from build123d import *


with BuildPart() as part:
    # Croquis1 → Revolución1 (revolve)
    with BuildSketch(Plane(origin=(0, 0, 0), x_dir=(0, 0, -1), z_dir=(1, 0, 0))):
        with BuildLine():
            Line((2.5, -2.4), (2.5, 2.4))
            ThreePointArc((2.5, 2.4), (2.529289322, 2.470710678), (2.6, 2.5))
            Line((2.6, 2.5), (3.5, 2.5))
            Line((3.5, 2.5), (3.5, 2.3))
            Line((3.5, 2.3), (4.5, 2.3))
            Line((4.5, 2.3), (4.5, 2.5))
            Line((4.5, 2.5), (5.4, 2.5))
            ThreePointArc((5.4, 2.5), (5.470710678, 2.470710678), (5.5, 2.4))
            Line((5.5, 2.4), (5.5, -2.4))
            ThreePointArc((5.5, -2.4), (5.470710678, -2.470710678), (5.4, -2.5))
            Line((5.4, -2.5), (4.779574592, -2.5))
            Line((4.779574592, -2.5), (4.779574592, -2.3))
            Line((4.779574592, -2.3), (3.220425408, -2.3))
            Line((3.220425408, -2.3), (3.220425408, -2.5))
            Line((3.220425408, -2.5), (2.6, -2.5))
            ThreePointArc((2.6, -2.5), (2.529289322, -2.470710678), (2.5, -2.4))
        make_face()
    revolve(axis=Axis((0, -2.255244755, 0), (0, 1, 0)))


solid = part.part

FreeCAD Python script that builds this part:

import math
import FreeCAD as App
import Part
import Sketcher
from FreeCAD import Vector
Q = App.Units.Quantity

doc = App.newDocument("Part")
body = doc.addObject("PartDesign::Body", "Body")

# Sketch on YZ plane
sketch1 = doc.addObject("Sketcher::SketchObject", "Sketch")
body.addObject(sketch1)
sketch1.AttachmentSupport = (doc.YZ_Plane, [""])
sketch1.MapMode = "FlatFace"
sketch1.addGeometry([
    Part.LineSegment(Vector(2.4, -2.5, 0), Vector(-2.4, -2.5, 0)),  # 0
    Part.ArcOfCircle(Part.Circle(Vector(-2.4, -2.6, 0), Vector(0, 0, 1), 0.1), math.radians(90), math.radians(180)),  # 1
    Part.LineSegment(Vector(-2.5, -2.6, 0), Vector(-2.5, -3.220425, 0)),  # 2
    Part.LineSegment(Vector(-2.5, -3.220425, 0), Vector(-2.3, -3.220425, 0)),  # 3
    Part.LineSegment(Vector(-2.3, -3.220425, 0), Vector(-2.3, -4.779575, 0)),  # 4
    Part.LineSegment(Vector(-2.3, -4.779575, 0), Vector(-2.5, -4.779575, 0)),  # 5
    Part.LineSegment(Vector(-2.5, -4.779575, 0), Vector(-2.5, -5.4, 0)),  # 6
    Part.ArcOfCircle(Part.Circle(Vector(-2.4, -5.4, 0), Vector(0, 0, 1), 0.1), math.radians(180), math.radians(270)),  # 7
    Part.LineSegment(Vector(-2.4, -5.5, 0), Vector(2.4, -5.5, 0)),  # 8
    Part.ArcOfCircle(Part.Circle(Vector(2.4, -5.4, 0), Vector(0, 0, 1), 0.1), math.radians(-90), math.radians(0)),  # 9
    Part.LineSegment(Vector(2.5, -5.4, 0), Vector(2.5, -4.5, 0)),  # 10
    Part.LineSegment(Vector(2.5, -4.5, 0), Vector(2.3, -4.5, 0)),  # 11
    Part.LineSegment(Vector(2.3, -4.5, 0), Vector(2.3, -3.5, 0)),  # 12
    Part.LineSegment(Vector(2.3, -3.5, 0), Vector(2.5, -3.5, 0)),  # 13
    Part.LineSegment(Vector(2.5, -3.5, 0), Vector(2.5, -2.6, 0)),  # 14
    Part.ArcOfCircle(Part.Circle(Vector(2.4, -2.6, 0), Vector(0, 0, 1), 0.1), math.radians(0), math.radians(90)),  # 15
], False)
sketch1.addConstraint([
    Sketcher.Constraint("Tangent", 0, 2, 1, 1),
    Sketcher.Constraint("Tangent", 1, 2, 2, 1),
    Sketcher.Constraint("Coincident", 2, 2, 3, 1),
    Sketcher.Constraint("Coincident", 3, 2, 4, 1),
    Sketcher.Constraint("Coincident", 4, 2, 5, 1),
    Sketcher.Constraint("Coincident", 5, 2, 6, 1),
    Sketcher.Constraint("Tangent", 6, 2, 7, 1),
    Sketcher.Constraint("Tangent", 7, 2, 8, 1),
    Sketcher.Constraint("Tangent", 8, 2, 9, 1),
    Sketcher.Constraint("Tangent", 9, 2, 10, 1),
    Sketcher.Constraint("Coincident", 10, 2, 11, 1),
    Sketcher.Constraint("Coincident", 11, 2, 12, 1),
    Sketcher.Constraint("Coincident", 12, 2, 13, 1),
    Sketcher.Constraint("Coincident", 13, 2, 14, 1),
    Sketcher.Constraint("Tangent", 14, 2, 15, 1),
    Sketcher.Constraint("Tangent", 15, 2, 0, 1),
    Sketcher.Constraint("Horizontal", 0),
    Sketcher.Constraint("Vertical", 2),
    Sketcher.Constraint("Horizontal", 3),
    Sketcher.Constraint("Vertical", 4),
    Sketcher.Constraint("Horizontal", 5),
    Sketcher.Constraint("Vertical", 6),
    Sketcher.Constraint("Horizontal", 8),
    Sketcher.Constraint("Vertical", 10),
    Sketcher.Constraint("Horizontal", 11),
    Sketcher.Constraint("Vertical", 12),
    Sketcher.Constraint("Horizontal", 13),
    Sketcher.Constraint("Vertical", 14),
    Sketcher.Constraint("Equal", 1, 7),
    Sketcher.Constraint("Equal", 7, 9),
    Sketcher.Constraint("Equal", 9, 15),
    Sketcher.Constraint("Vertical", 1, 3, 7, 3),
    Sketcher.Constraint("Vertical", 9, 3, 15, 3),
    Sketcher.Constraint("Equal", 5, 11),
    Sketcher.Constraint("Equal", 2, 6),
    Sketcher.Constraint("Equal", 10, 14),
    Sketcher.Constraint("Radius", 1, Q("0.1 mm")),
    Sketcher.Constraint("DistanceY", 12, 1, 12, 2, Q("1 mm")),
    Sketcher.Constraint("DistanceX", 0, 2, 0, 1, Q("4.8 mm")),
    Sketcher.Constraint("DistanceX", 3, 1, 3, 2, Q("0.2 mm")),
    Sketcher.Constraint("DistanceY", 10, 1, 10, 2, Q("0.9 mm")),
    Sketcher.Constraint("DistanceX", 1, 3, -1, 1, Q("2.4 mm")),
    Sketcher.Constraint("DistanceY", 1, 3, -1, 1, Q("2.6 mm")),
    Sketcher.Constraint("DistanceY", 4, 2, 4, 1, Q("1.559149 mm")),
])
revolution = doc.addObject("PartDesign::Revolution", "Revolution")
body.addObject(revolution)
revolution.Profile = sketch1
revolution.ReferenceAxis = (sketch1, ["H_Axis"])
revolution.Angle = 360

doc.recompute()
